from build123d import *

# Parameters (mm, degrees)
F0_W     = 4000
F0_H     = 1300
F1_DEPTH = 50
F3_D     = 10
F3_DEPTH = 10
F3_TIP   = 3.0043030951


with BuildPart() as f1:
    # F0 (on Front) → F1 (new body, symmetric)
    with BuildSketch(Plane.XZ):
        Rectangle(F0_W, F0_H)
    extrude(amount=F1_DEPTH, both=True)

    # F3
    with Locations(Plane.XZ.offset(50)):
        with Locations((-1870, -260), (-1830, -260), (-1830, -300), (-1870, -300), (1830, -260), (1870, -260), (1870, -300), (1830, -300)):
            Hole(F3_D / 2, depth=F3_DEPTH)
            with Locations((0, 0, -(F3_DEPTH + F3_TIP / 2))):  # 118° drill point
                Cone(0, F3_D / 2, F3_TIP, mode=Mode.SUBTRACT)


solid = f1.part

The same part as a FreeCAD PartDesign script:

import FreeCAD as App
import Part
import Sketcher
from FreeCAD import Vector

doc = App.newDocument("Part")
body = doc.addObject("PartDesign::Body", "Body")

sketch1 = doc.addObject("Sketcher::SketchObject", "Sketch")
body.addObject(sketch1)
sketch1.AttachmentSupport = (doc.XZ_Plane, [""])
sketch1.MapMode = "FlatFace"
sketch1.addGeometry(Part.LineSegment(Vector(-2000, 650, 0), Vector(-2000, -650, 0)), False)
sketch1.addGeometry(Part.LineSegment(Vector(-2000, -650, 0), Vector(2000, -650, 0)), False)
sketch1.addGeometry(Part.LineSegment(Vector(2000, -650, 0), Vector(2000, 650, 0)), False)
sketch1.addGeometry(Part.LineSegment(Vector(2000, 650, 0), Vector(-2000, 650, 0)), False)
sketch1.addConstraint(Sketcher.Constraint("Coincident", 0, 2, 1, 1))
sketch1.addConstraint(Sketcher.Constraint("Coincident", 1, 2, 2, 1))
sketch1.addConstraint(Sketcher.Constraint("Coincident", 2, 2, 3, 1))
sketch1.addConstraint(Sketcher.Constraint("Coincident", 3, 2, 0, 1))
sketch1.addConstraint(Sketcher.Constraint("Vertical", 0))
sketch1.addConstraint(Sketcher.Constraint("Horizontal", 1))
sketch1.addConstraint(Sketcher.Constraint("Vertical", 2))
sketch1.addConstraint(Sketcher.Constraint("Horizontal", 3))
sketch1.addConstraint(Sketcher.Constraint("Symmetric", 0, 2, 2, 2, -1, 1))
sketch1.addConstraint(Sketcher.Constraint("DistanceX", 1, 1, 1, 2, 4000.0))
sketch1.addConstraint(Sketcher.Constraint("DistanceY", 0, 2, 0, 1, 1300.0))
pad1 = doc.addObject("PartDesign::Pad", "Pad")
body.addObject(pad1)
pad1.Profile = sketch1
pad1.Length = 100
pad1.Midplane = True

sketch2 = doc.addObject("Sketcher::SketchObject", "Sketch001")
body.addObject(sketch2)
sketch2.AttachmentSupport = (doc.XZ_Plane, [""])
sketch2.MapMode = "FlatFace"
sketch2.AttachmentOffset = App.Placement(Vector(0, 0, 50), App.Rotation())
sketch2.addGeometry(Part.Circle(Vector(-1870, -260, 0), Vector(0, 0, 1), 5), False)
sketch2.addGeometry(Part.Circle(Vector(-1830, -260, 0), Vector(0, 0, 1), 5), False)
sketch2.addGeometry(Part.Circle(Vector(-1830, -300, 0), Vector(0, 0, 1), 5), False)
sketch2.addGeometry(Part.Circle(Vector(-1870, -300, 0), Vector(0, 0, 1), 5), False)
sketch2.addGeometry(Part.Circle(Vector(1830, -260, 0), Vector(0, 0, 1), 5), False)
sketch2.addGeometry(Part.Circle(Vector(1870, -260, 0), Vector(0, 0, 1), 5), False)
sketch2.addGeometry(Part.Circle(Vector(1870, -300, 0), Vector(0, 0, 1), 5), False)
sketch2.addGeometry(Part.Circle(Vector(1830, -300, 0), Vector(0, 0, 1), 5), False)
sketch2.addConstraint(Sketcher.Constraint("Equal", 0, 1))
sketch2.addConstraint(Sketcher.Constraint("Equal", 1, 2))
sketch2.addConstraint(Sketcher.Constraint("Equal", 2, 3))
sketch2.addConstraint(Sketcher.Constraint("Equal", 3, 4))
sketch2.addConstraint(Sketcher.Constraint("Equal", 4, 5))
sketch2.addConstraint(Sketcher.Constraint("Equal", 5, 6))
sketch2.addConstraint(Sketcher.Constraint("Equal", 6, 7))
sketch2.addConstraint(Sketcher.Constraint("Symmetric", 1, 3, 4, 3, -2))
sketch2.addConstraint(Sketcher.Constraint("Symmetric", 0, 3, 5, 3, -2))
sketch2.addConstraint(Sketcher.Constraint("Symmetric", 3, 3, 6, 3, -2))
sketch2.addConstraint(Sketcher.Constraint("Symmetric", 2, 3, 7, 3, -2))
sketch2.addConstraint(Sketcher.Constraint("Horizontal", 0, 3, 1, 3))
sketch2.addConstraint(Sketcher.Constraint("Horizontal", 2, 3, 3, 3))
sketch2.addConstraint(Sketcher.Constraint("Vertical", 1, 3, 2, 3))
sketch2.addConstraint(Sketcher.Constraint("Vertical", 0, 3, 3, 3))
sketch2.addConstraint(Sketcher.Constraint("Diameter", 0, 10.0))
sketch2.addConstraint(Sketcher.Constraint("DistanceX", 0, 3, -1, 1, 1870.0))
sketch2.addConstraint(Sketcher.Constraint("DistanceY", 0, 3, -1, 1, 260.0))
sketch2.addConstraint(Sketcher.Constraint("DistanceX", 1, 3, -1, 1, 1830.0))
sketch2.addConstraint(Sketcher.Constraint("DistanceY", 2, 3, -1, 1, 300.0))
doc.recompute()
hole = doc.addObject("PartDesign::Hole", "Hole")
body.addObject(hole)
hole.Profile = sketch2
hole.ThreadType = "None"
hole.Diameter = 10
hole.DepthType = "Dimension"
hole.Depth = 10
hole.DrillPoint = "Angled"
hole.DrillPointAngle = 118

doc.recompute()
